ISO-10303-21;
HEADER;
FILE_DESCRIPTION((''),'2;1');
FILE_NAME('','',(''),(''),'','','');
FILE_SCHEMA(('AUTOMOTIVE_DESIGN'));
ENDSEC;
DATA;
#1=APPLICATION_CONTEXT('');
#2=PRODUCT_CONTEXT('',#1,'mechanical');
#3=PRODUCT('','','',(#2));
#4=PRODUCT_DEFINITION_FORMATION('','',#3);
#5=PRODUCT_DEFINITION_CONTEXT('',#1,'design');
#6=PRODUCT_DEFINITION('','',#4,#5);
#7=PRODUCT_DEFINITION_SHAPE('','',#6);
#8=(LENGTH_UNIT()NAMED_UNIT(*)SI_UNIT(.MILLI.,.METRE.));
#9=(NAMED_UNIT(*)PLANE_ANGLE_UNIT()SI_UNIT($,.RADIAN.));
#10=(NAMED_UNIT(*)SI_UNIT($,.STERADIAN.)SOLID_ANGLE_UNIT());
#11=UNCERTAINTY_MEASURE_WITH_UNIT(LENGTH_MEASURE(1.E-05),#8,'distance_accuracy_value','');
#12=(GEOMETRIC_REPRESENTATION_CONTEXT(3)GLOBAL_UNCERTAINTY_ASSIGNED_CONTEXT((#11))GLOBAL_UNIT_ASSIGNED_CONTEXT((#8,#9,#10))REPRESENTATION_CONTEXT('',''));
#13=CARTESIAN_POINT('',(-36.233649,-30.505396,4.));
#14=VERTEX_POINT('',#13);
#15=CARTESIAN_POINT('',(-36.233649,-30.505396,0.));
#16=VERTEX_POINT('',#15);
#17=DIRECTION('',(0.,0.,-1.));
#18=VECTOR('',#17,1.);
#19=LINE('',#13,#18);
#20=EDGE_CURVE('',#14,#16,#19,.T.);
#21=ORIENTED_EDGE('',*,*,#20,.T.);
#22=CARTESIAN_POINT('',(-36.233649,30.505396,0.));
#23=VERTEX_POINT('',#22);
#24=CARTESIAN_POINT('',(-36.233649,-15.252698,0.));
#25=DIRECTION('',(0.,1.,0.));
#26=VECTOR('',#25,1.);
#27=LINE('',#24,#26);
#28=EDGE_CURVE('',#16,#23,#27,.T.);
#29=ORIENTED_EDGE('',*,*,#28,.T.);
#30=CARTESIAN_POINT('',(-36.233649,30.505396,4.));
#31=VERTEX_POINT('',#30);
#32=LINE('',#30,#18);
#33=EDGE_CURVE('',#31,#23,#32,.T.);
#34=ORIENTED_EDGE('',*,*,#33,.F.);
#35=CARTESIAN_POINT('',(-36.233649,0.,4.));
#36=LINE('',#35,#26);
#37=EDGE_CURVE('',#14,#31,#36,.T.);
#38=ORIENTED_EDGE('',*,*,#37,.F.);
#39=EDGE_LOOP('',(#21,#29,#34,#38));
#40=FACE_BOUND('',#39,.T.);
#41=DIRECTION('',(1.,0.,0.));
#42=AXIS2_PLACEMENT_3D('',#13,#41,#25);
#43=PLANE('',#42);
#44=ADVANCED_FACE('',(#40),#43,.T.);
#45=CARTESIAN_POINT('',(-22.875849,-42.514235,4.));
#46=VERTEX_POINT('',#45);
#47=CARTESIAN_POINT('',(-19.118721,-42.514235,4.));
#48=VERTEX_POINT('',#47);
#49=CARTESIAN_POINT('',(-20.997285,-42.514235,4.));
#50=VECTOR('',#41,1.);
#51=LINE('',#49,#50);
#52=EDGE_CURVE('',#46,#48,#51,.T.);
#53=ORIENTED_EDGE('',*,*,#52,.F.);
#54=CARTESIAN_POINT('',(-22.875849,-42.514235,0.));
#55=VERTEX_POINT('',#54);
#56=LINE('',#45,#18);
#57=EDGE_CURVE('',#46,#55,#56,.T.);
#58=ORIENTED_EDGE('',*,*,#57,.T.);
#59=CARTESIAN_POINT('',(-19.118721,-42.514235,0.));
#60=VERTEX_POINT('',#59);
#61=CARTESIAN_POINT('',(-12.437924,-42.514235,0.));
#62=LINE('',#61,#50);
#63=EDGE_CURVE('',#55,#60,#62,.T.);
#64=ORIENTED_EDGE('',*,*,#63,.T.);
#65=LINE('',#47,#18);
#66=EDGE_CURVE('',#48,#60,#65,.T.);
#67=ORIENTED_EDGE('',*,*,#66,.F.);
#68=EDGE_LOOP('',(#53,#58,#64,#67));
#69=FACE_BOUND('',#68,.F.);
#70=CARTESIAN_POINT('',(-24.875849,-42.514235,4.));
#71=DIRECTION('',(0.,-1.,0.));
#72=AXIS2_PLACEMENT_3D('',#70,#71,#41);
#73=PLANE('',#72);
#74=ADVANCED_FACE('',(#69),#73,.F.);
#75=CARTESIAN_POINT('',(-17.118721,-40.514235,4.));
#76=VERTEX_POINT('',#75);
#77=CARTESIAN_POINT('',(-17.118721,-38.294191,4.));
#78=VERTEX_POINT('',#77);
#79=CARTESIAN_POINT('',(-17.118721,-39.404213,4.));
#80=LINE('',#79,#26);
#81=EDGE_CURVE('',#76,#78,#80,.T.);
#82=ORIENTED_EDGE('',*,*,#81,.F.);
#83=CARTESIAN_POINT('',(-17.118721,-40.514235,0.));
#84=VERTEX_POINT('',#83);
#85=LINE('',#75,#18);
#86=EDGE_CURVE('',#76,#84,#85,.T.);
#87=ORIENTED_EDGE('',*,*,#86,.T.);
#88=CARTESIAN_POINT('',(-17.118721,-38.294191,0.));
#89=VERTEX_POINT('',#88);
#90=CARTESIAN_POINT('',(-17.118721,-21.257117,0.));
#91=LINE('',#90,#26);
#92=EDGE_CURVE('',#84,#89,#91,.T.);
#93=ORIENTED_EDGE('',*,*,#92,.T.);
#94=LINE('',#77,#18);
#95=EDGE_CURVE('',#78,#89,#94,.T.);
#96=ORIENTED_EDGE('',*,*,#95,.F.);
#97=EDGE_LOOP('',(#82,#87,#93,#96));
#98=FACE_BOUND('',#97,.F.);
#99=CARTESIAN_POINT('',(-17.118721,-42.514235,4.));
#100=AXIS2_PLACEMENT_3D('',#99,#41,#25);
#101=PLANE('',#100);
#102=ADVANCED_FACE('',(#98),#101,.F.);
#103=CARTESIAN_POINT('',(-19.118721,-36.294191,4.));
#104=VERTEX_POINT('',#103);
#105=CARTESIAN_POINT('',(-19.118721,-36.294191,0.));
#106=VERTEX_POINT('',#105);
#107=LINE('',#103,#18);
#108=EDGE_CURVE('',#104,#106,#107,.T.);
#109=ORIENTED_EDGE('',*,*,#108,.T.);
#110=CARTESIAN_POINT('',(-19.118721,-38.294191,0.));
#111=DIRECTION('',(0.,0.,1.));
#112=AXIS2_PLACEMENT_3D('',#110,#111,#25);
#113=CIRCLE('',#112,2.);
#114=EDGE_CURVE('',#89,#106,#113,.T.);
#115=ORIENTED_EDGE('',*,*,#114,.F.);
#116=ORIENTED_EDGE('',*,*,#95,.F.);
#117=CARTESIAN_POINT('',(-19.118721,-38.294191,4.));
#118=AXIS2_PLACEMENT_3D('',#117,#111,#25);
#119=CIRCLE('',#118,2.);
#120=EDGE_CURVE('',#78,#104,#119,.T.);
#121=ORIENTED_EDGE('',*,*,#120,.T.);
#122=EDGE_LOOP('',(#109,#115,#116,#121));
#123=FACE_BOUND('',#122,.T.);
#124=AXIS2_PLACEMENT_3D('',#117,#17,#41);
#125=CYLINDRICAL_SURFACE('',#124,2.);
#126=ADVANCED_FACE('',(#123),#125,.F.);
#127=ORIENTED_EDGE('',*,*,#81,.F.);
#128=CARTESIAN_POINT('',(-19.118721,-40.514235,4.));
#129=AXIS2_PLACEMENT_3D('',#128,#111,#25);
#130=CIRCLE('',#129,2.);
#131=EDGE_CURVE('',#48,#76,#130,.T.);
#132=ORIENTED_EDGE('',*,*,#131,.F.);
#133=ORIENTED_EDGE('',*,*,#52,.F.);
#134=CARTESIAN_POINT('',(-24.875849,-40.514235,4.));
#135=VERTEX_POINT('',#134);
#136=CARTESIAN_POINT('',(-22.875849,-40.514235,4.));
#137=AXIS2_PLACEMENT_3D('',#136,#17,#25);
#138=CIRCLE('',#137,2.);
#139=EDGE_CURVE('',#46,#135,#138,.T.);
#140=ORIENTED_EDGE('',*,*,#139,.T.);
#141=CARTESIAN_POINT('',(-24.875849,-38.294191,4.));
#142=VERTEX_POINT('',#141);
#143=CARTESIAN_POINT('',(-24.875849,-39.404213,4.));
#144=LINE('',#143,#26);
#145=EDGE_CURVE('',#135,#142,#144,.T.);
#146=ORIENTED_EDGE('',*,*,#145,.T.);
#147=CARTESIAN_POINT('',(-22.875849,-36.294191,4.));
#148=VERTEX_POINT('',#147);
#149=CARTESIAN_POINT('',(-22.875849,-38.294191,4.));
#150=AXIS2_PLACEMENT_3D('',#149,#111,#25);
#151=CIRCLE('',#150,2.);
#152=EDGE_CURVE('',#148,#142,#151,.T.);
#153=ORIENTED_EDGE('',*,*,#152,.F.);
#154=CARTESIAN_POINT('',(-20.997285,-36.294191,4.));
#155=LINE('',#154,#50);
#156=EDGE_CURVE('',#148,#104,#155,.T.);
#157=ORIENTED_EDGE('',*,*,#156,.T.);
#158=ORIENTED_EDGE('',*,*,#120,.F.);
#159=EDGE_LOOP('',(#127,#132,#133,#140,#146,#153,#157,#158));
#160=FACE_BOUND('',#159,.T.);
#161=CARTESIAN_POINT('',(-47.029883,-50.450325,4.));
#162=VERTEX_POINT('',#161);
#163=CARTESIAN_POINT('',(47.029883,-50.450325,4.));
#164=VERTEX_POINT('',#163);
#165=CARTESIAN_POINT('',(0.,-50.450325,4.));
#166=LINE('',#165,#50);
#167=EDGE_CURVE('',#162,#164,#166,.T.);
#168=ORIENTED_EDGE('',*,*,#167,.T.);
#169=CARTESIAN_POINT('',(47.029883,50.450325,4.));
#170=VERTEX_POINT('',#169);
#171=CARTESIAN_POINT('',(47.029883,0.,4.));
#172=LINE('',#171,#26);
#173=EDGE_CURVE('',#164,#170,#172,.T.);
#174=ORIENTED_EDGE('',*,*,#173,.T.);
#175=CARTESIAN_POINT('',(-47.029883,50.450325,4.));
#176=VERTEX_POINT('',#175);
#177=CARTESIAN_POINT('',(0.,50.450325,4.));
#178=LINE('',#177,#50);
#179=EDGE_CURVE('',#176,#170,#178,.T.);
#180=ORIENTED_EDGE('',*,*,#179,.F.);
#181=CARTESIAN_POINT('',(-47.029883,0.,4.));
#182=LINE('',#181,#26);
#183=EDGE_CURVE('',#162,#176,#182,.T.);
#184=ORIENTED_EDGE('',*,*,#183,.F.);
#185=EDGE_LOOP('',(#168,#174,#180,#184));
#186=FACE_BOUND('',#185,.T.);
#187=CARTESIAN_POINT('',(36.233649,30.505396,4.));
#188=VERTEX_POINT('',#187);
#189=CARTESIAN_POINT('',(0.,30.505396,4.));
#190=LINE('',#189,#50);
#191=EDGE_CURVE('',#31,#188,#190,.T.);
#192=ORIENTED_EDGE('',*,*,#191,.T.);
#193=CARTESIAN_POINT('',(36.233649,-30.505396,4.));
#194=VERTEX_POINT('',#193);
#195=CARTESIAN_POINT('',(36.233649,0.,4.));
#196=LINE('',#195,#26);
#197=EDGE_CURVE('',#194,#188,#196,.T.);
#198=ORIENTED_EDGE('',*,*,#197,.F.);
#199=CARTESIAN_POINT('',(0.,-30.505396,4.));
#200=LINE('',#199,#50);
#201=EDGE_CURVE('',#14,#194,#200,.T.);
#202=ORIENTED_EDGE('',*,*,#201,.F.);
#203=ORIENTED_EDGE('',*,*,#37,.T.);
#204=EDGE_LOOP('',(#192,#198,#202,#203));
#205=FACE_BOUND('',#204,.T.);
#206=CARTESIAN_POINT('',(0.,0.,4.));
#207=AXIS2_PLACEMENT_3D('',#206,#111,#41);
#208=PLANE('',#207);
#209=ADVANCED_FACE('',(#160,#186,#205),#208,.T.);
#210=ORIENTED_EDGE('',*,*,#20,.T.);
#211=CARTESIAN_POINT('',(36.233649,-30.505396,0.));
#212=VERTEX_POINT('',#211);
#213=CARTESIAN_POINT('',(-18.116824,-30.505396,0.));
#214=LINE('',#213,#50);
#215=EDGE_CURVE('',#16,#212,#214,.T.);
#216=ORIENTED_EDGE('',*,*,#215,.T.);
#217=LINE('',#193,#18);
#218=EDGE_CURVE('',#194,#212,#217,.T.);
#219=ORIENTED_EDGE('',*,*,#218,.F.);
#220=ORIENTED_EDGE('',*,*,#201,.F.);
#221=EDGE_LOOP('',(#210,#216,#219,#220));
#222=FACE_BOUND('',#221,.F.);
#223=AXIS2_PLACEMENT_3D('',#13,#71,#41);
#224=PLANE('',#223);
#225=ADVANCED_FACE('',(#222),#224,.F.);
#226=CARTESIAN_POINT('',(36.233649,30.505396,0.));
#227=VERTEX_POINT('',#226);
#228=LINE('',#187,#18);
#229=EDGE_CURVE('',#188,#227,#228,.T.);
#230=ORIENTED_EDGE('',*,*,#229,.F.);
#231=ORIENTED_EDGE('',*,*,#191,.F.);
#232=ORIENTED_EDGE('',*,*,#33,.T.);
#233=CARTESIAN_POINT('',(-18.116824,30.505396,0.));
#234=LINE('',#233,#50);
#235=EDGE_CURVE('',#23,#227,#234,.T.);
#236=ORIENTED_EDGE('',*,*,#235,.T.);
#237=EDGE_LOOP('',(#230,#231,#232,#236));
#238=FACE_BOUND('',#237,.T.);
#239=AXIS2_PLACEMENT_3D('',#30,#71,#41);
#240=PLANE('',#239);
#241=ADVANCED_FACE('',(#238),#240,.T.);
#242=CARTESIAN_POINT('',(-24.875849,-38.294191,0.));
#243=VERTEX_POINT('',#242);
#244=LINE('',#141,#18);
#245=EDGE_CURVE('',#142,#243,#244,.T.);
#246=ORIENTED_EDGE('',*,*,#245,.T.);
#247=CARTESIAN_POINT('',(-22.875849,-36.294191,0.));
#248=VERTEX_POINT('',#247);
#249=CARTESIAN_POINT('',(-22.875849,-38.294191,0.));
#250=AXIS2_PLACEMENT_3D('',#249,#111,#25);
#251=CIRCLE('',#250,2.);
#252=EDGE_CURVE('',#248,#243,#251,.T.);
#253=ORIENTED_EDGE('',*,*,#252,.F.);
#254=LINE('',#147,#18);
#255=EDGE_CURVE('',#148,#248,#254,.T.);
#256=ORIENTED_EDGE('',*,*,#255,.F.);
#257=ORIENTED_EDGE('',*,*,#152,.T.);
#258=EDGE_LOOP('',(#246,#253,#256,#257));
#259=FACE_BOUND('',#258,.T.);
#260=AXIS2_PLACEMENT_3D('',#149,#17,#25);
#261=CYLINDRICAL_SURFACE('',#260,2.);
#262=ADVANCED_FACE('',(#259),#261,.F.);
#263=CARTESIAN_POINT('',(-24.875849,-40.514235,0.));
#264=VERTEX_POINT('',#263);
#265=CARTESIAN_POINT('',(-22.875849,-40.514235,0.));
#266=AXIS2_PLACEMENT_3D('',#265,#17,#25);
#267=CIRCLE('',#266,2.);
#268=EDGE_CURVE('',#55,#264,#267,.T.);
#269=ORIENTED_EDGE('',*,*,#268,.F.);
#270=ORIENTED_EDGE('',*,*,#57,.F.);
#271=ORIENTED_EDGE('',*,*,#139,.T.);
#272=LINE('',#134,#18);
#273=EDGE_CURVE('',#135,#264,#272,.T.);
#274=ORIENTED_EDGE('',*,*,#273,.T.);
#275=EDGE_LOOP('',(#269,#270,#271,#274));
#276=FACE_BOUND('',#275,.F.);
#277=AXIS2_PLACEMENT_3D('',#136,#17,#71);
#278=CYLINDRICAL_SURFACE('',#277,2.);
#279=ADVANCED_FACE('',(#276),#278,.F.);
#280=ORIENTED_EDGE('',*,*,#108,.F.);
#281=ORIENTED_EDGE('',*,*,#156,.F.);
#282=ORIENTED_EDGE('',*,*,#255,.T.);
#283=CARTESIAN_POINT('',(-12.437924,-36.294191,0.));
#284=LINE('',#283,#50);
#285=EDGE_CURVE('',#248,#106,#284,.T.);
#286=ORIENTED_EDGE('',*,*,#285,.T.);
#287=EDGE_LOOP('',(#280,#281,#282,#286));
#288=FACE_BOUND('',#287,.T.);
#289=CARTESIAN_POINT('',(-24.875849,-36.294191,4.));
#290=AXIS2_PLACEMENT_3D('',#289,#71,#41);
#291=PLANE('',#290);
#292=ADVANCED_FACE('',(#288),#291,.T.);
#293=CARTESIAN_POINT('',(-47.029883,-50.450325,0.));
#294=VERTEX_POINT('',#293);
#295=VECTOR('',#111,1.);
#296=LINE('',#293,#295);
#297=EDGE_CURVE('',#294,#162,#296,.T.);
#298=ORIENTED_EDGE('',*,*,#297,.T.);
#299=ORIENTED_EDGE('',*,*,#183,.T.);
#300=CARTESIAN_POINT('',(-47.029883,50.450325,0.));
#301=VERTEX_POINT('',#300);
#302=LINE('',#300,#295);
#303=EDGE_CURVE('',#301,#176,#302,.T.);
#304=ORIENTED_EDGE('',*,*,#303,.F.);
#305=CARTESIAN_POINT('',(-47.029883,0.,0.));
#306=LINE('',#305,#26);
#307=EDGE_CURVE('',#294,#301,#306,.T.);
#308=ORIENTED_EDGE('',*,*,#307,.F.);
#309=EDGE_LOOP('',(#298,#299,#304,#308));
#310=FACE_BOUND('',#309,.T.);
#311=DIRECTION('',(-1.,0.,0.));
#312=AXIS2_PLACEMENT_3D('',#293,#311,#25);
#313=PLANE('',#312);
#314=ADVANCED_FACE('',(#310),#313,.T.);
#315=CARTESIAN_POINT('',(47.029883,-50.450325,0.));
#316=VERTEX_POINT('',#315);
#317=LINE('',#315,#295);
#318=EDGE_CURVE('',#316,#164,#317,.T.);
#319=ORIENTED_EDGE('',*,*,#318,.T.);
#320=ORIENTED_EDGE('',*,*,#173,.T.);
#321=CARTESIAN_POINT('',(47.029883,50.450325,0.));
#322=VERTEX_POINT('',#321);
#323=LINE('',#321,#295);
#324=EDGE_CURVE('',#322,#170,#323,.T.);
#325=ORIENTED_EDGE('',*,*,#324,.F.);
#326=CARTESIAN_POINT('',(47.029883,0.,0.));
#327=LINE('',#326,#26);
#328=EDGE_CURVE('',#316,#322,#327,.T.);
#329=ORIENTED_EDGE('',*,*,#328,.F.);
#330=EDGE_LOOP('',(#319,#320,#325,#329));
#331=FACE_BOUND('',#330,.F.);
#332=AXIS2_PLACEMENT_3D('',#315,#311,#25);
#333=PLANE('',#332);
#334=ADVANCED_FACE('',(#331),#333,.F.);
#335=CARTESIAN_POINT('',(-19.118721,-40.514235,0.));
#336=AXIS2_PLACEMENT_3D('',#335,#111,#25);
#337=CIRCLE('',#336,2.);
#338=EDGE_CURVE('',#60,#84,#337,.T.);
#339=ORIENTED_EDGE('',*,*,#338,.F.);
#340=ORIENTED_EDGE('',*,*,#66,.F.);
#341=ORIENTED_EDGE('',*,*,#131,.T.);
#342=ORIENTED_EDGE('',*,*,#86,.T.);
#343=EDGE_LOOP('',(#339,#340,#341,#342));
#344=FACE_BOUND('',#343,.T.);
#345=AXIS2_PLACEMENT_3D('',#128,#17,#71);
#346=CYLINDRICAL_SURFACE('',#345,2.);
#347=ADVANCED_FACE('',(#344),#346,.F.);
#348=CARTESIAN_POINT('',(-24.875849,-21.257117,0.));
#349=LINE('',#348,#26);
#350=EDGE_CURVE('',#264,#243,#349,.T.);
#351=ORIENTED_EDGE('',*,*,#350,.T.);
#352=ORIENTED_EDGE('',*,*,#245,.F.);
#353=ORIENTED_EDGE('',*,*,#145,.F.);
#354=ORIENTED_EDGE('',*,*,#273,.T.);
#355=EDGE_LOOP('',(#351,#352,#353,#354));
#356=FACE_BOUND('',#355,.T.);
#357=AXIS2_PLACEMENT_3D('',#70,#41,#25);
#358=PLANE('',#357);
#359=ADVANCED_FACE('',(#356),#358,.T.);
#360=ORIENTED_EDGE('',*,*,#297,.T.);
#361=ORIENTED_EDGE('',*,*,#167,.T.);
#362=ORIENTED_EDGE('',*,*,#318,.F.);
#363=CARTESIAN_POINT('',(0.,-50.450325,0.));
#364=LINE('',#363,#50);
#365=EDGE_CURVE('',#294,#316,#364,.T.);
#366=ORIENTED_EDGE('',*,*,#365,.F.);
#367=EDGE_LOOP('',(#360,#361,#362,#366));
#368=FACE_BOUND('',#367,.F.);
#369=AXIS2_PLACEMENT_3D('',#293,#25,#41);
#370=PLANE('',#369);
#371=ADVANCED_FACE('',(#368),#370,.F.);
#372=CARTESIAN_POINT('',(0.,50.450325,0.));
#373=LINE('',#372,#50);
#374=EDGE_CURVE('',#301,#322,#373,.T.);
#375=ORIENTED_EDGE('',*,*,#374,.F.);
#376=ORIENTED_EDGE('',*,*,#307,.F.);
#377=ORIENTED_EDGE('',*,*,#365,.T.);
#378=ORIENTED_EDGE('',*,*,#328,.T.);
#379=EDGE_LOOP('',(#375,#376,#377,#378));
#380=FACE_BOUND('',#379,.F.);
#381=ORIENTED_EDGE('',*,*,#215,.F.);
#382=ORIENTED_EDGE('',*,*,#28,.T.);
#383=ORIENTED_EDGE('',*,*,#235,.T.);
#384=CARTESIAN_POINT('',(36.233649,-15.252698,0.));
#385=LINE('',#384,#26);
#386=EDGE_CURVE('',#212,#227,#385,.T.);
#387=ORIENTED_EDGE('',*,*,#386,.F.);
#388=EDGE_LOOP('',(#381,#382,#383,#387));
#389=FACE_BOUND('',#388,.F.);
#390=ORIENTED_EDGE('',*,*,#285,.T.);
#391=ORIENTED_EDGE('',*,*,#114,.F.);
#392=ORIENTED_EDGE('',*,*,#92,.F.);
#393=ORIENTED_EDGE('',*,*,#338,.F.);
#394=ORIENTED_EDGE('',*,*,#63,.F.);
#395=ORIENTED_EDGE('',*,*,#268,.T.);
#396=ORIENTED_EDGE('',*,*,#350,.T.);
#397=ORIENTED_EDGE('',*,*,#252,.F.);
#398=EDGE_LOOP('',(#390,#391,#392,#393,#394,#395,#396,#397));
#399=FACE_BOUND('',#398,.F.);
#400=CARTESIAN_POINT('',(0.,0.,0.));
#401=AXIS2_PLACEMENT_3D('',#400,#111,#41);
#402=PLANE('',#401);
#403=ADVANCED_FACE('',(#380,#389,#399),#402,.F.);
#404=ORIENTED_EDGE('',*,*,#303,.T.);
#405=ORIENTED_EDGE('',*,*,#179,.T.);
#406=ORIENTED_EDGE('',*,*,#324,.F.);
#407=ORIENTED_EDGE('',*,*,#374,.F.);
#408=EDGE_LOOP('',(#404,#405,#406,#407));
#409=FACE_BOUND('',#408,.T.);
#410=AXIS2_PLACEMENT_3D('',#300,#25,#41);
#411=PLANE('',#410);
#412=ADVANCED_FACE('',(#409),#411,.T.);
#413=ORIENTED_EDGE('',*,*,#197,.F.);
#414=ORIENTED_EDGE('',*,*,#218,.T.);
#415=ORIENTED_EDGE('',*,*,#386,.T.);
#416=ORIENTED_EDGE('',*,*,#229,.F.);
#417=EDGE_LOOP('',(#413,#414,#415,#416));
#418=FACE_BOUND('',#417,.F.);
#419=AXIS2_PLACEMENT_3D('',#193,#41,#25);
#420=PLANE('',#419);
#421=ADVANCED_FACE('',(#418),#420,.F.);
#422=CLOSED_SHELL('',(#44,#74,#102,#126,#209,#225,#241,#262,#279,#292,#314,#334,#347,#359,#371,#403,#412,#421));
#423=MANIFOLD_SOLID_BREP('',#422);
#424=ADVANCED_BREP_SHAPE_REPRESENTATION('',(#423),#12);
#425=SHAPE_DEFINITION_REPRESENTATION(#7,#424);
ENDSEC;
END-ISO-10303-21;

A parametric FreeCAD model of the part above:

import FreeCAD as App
import Part
import Sketcher

V = App.Vector


def edges_at(feature, points):
    """Names of the edges that pass closest to the given points."""
    edges = feature.Shape.Edges
    near = lambda p: min(range(len(edges)), key=lambda i: edges[i].distToShape(Part.Vertex(*p))[0])
    return sorted({f"Edge{near(p) + 1}" for p in points})

doc = App.newDocument("Part")
body = doc.addObject("PartDesign::Body", "Body")

# Sketch on XY plane
sketch1 = body.newObject("Sketcher::SketchObject", "Sketch")
sketch1.AttachmentSupport = (doc.getObject("XY_Plane"), [""])
sketch1.MapMode = "FlatFace"
sketch1.addGeometry([
    Part.LineSegment(V(-47, 50, 0), V(-47, -50, 0)),
    Part.LineSegment(V(-47, -50, 0), V(47, -50, 0)),
    Part.LineSegment(V(47, -50, 0), V(47, 50, 0)),
    Part.LineSegment(V(47, 50, 0), V(-47, 50, 0)),
], False)
sketch1.addConstraint([
    Sketcher.Constraint("Coincident", 0, 2, 1, 1),
    Sketcher.Constraint("Coincident", 1, 2, 2, 1),
    Sketcher.Constraint("Coincident", 2, 2, 3, 1),
    Sketcher.Constraint("Coincident", 3, 2, 0, 1),
    Sketcher.Constraint("Vertical", 0),
    Sketcher.Constraint("Horizontal", 1),
    Sketcher.Constraint("Vertical", 2),
    Sketcher.Constraint("Horizontal", 3),
    Sketcher.Constraint("Symmetric", 0, 2, 2, 2, -1, 1),
    Sketcher.Constraint("DistanceY", 0, 2, 0, 1, 100.90065),
    Sketcher.Constraint("DistanceX", 1, 1, 1, 2, 94.059766),
])
pad1 = body.newObject("PartDesign::Pad", "Pad")
pad1.Profile = sketch1
pad1.Length = 4

# Sketch on XY plane
sketch2 = body.newObject("Sketcher::SketchObject", "Sketch001")
sketch2.AttachmentSupport = (doc.getObject("XY_Plane"), [""])
sketch2.MapMode = "FlatFace"
sketch2.AttachmentOffset = App.Placement(V(0, 0, 4), App.Rotation())
sketch2.addGeometry([
    Part.LineSegment(V(-36, 31, 0), V(-36, -31, 0)),
    Part.LineSegment(V(-36, -31, 0), V(36, -31, 0)),
    Part.LineSegment(V(36, -31, 0), V(36, 31, 0)),
    Part.LineSegment(V(36, 31, 0), V(-36, 31, 0)),
], False)
sketch2.addConstraint([
    Sketcher.Constraint("Coincident", 0, 2, 1, 1),
    Sketcher.Constraint("Coincident", 1, 2, 2, 1),
    Sketcher.Constraint("Coincident", 2, 2, 3, 1),
    Sketcher.Constraint("Coincident", 3, 2, 0, 1),
    Sketcher.Constraint("Vertical", 0),
    Sketcher.Constraint("Horizontal", 1),
    Sketcher.Constraint("Vertical", 2),
    Sketcher.Constraint("Horizontal", 3),
    Sketcher.Constraint("Symmetric", 0, 2, 2, 2, -1, 1),
    Sketcher.Constraint("DistanceX", 1, 1, 1, 2, 72.467298),
    Sketcher.Constraint("DistanceY", 0, 2, 0, 1, 61.010792),
])
pocket1 = body.newObject("PartDesign::Pocket", "Pocket")
pocket1.Profile = sketch2
pocket1.Length = 25

# Sketch on XY plane
sketch3 = body.newObject("Sketcher::SketchObject", "Sketch002")
sketch3.AttachmentSupport = (doc.getObject("XY_Plane"), [""])
sketch3.MapMode = "FlatFace"
sketch3.AttachmentOffset = App.Placement(V(0, 0, 4), App.Rotation())
sketch3.addGeometry([
    Part.LineSegment(V(-25, -36, 0), V(-25, -43, 0)),
    Part.LineSegment(V(-25, -43, 0), V(-17, -43, 0)),
    Part.LineSegment(V(-17, -43, 0), V(-17, -36, 0)),
    Part.LineSegment(V(-17, -36, 0), V(-25, -36, 0)),
], False)
sketch3.addConstraint([
    Sketcher.Constraint("Coincident", 0, 2, 1, 1),
    Sketcher.Constraint("Coincident", 1, 2, 2, 1),
    Sketcher.Constraint("Coincident", 2, 2, 3, 1),
    Sketcher.Constraint("Coincident", 3, 2, 0, 1),
    Sketcher.Constraint("Vertical", 0),
    Sketcher.Constraint("Horizontal", 1),
    Sketcher.Constraint("Vertical", 2),
    Sketcher.Constraint("Horizontal", 3),
    Sketcher.Constraint("DistanceX", 1, 1, 1, 2, 7.757127),
    Sketcher.Constraint("DistanceY", 0, 2, 0, 1, 6.220043),
    Sketcher.Constraint("DistanceX", 0, 2, -1, 1, 24.875849),
    Sketcher.Constraint("DistanceY", 2, 2, -1, 1, 36.294191),
])
pocket2 = body.newObject("PartDesign::Pocket", "Pocket001")
pocket2.Profile = sketch3
pocket2.Length = 25
doc.recompute()

fillet = body.newObject("PartDesign::Fillet", "Fillet")
fillet.Base = (pocket2, edges_at(pocket2, [
    (-24.876, -36.294, 2),
    (-24.876, -42.514, 2),
    (-17.119, -42.514, 2),
    (-17.119, -36.294, 2),
]))
fillet.Radius = 2

doc.recompute()
